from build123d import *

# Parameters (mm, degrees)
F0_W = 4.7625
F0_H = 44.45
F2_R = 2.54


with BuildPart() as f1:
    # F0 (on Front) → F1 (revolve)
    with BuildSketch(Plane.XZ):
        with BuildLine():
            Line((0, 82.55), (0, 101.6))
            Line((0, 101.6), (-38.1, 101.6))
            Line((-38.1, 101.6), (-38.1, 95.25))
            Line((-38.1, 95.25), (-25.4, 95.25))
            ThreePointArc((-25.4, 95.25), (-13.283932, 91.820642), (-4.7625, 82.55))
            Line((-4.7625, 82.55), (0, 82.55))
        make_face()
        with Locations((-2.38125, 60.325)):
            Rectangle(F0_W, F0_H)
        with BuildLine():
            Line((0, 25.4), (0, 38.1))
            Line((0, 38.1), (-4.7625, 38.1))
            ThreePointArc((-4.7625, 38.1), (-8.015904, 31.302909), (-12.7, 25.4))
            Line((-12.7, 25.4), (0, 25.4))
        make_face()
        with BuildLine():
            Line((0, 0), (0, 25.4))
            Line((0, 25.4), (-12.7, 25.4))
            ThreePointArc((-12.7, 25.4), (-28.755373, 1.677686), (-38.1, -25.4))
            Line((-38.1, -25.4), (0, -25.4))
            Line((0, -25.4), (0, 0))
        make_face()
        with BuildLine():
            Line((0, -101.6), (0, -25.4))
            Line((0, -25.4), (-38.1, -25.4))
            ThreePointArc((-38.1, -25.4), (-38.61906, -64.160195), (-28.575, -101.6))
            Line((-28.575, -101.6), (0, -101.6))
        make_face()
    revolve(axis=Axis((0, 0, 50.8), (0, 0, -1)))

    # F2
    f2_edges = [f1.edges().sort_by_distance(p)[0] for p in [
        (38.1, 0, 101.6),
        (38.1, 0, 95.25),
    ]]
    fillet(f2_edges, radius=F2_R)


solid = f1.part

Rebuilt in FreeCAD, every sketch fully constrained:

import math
import FreeCAD as App
import Part
import Sketcher
from FreeCAD import Vector
Q = App.Units.Quantity


def edges_at(feature, points):
    """Names of the edges that pass closest to the given points."""
    edges = feature.Shape.Edges
    near = lambda p: min(range(len(edges)), key=lambda i: edges[i].distToShape(Part.Vertex(*p))[0])
    return sorted({f"Edge{near(p) + 1}" for p in points})

doc = App.newDocument("Part")
params = doc.addObject("Spreadsheet::Sheet", "Params")
for row, (alias, value) in enumerate([
    ("sketch1_height", "8 in"),
    ("sketch1_width", "1.5 in"),
    ("sketch1_width2", "0.5 in"),
    ("sketch1_height2", "0.25 in"),
    ("sketch1_height3", "1.75 in"),
    ("revolution_angle", "360 deg"),
    ("fillet_radius", "0.1 in"),
], start=1):
    params.set(f"A{row}", alias)
    params.set(f"B{row}", "=" + value)
    params.setAlias(f"B{row}", alias)

body = doc.addObject("PartDesign::Body", "Body")

# Sketch on XZ plane
sketch1 = doc.addObject("Sketcher::SketchObject", "Sketch")
body.addObject(sketch1)
sketch1.AttachmentSupport = (doc.XZ_Plane, [""])
sketch1.MapMode = "FlatFace"
sketch1.addGeometry([
    Part.LineSegment(Vector(0, 102, 0), Vector(-38, 102, 0)),  # 0
    Part.LineSegment(Vector(-38, 102, 0), Vector(-38, 95, 0)),  # 1
    Part.LineSegment(Vector(-38, 95, 0), Vector(-25, 95, 0)),  # 2
    Part.ArcOfCircle(Part.Circle(Vector(-25, 72, 0), Vector(0, 0, 1), 23), math.radians(27), math.radians(90)),  # 3
    Part.LineSegment(Vector(-5, 83, 0), Vector(-5, 38, 0)),  # 4
    Part.ArcOfCircle(Part.Circle(Vector(-37, 49, 0), Vector(0, 0, 1), 34), math.radians(-45), math.radians(-19)),  # 5
    Part.ArcOfCircle(Part.Circle(Vector(69, -47, 0), Vector(0, 0, 1), 109), math.radians(138), math.radians(168)),  # 6
    Part.ArcOfCircle(Part.Circle(Vector(101, -47, 0), Vector(0, 0, 1), 141), math.radians(171), math.radians(203)),  # 7
    Part.LineSegment(Vector(-29, -102, 0), Vector(0, -102, 0)),  # 8
    Part.LineSegment(Vector(0, -102, 0), Vector(0, 102, 0)),  # 9
], False)
sketch1.addConstraint([
    Sketcher.Constraint("Coincident", 0, 2, 1, 1),
    Sketcher.Constraint("Coincident", 1, 2, 2, 1),
    Sketcher.Constraint("Tangent", 2, 2, 3, 2),
    Sketcher.Constraint("Coincident", 3, 1, 4, 1),
    Sketcher.Constraint("Coincident", 4, 2, 5, 2),
    Sketcher.Constraint("Coincident", 5, 1, 6, 1),
    Sketcher.Constraint("Coincident", 6, 2, 7, 1),
    Sketcher.Constraint("Coincident", 7, 2, 8, 1),
    Sketcher.Constraint("Coincident", 8, 2, 9, 1),
    Sketcher.Constraint("Coincident", 9, 2, 0, 1),
    Sketcher.Constraint("Horizontal", 0),
    Sketcher.Constraint("Vertical", 1),
    Sketcher.Constraint("Horizontal", 2),
    Sketcher.Constraint("Vertical", 4),
    Sketcher.Constraint("Horizontal", 8),
    Sketcher.Constraint("Vertical", 9),
    Sketcher.Constraint("Symmetric", 8, 2, 9, 2, -1, 1),
    Sketcher.Constraint("Vertical", 1, 2, 6, 2),
    Sketcher.Constraint("DistanceY", 9, 1, 9, 2, Q("8 in")),
    Sketcher.Constraint("DistanceX", 0, 2, 0, 1, Q("1.5 in")),
    Sketcher.Constraint("DistanceX", 2, 1, 2, 2, Q("0.5 in")),
    Sketcher.Constraint("DistanceY", -1, 1, 5, 1, Q("1 in")),
    Sketcher.Constraint("DistanceY", 6, 2, -1, 1, Q("1 in")),
    Sketcher.Constraint("DistanceX", 6, 2, 5, 1, Q("1 in")),
    Sketcher.Constraint("DistanceY", 1, 2, 1, 1, Q("0.25 in")),
    Sketcher.Constraint("DistanceY", 4, 2, 4, 1, Q("1.75 in")),
    Sketcher.Constraint("DistanceY", -1, 1, 4, 2, Q("1.5 in")),
    Sketcher.Constraint("DistanceX", 8, 1, 8, 2, Q("1.125 in")),
    Sketcher.Constraint("DistanceX", 3, 1, -1, 1, Q("0.1875 in")),
    Sketcher.Constraint("Radius", 6, Q("109.361652 mm")),
    Sketcher.Constraint("Radius", 7, Q("141.153249 mm")),
    Sketcher.Constraint("Radius", 5, Q("33.657604 mm")),
])
sketch1.setExpression("Constraints[18]", "Params.sketch1_height")
sketch1.setExpression("Constraints[19]", "Params.sketch1_width")
sketch1.setExpression("Constraints[20]", "Params.sketch1_width2")
sketch1.setExpression("Constraints[24]", "Params.sketch1_height2")
sketch1.setExpression("Constraints[25]", "Params.sketch1_height3")
revolution = doc.addObject("PartDesign::Revolution", "Revolution")
body.addObject(revolution)
revolution.Profile = sketch1
revolution.ReferenceAxis = (sketch1, ["V_Axis"])
revolution.setExpression("Angle", "Params.revolution_angle")
doc.recompute()

fillet = doc.addObject("PartDesign::Fillet", "Fillet")
body.addObject(fillet)
fillet.Base = (revolution, edges_at(revolution, [(38.1, 0, 101.6), (38.1, 0, 95.25)]))
fillet.setExpression("Radius", "Params.fillet_radius")

doc.recompute()
